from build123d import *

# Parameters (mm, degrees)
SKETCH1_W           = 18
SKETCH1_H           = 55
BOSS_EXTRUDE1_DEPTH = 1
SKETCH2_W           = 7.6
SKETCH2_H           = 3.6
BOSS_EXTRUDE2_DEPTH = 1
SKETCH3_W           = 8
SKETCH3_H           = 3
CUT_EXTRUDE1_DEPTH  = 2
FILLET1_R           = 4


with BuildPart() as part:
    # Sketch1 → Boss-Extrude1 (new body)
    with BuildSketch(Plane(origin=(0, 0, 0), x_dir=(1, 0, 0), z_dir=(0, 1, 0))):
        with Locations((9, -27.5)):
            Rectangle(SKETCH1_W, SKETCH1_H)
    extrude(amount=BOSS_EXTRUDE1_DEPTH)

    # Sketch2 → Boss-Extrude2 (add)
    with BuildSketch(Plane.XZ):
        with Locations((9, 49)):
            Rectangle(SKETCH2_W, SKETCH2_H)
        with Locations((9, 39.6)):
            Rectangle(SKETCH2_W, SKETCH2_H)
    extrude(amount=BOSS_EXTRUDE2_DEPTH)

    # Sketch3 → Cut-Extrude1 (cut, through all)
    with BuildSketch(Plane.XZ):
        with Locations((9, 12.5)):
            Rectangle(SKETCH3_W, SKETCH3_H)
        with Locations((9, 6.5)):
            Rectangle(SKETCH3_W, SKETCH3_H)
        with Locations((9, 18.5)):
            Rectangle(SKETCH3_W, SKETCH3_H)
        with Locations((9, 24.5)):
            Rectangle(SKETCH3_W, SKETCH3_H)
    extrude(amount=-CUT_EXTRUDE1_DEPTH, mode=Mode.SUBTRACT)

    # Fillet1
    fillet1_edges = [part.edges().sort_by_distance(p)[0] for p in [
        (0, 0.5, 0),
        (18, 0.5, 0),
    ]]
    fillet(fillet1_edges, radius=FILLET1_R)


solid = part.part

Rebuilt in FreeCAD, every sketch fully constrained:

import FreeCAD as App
import Part
import Sketcher

V = App.Vector


def edges_at(feature, points):
    """Names of the edges that pass closest to the given points."""
    edges = feature.Shape.Edges
    near = lambda p: min(range(len(edges)), key=lambda i: edges[i].distToShape(Part.Vertex(*p))[0])
    return sorted({f"Edge{near(p) + 1}" for p in points})


def add_polygon(sketch, points):
    """Adds a closed chain of lines whose ends are joined by coincident constraints."""
    first, n = sketch.GeometryCount, len(points)
    for a, b in zip(points, points[1:] + points[:1]):
        sketch.addGeometry(Part.LineSegment(App.Vector(*a, 0), App.Vector(*b, 0)), False)
    for i in range(n):
        sketch.addConstraint(Sketcher.Constraint("Coincident", first + i, 2, first + (i + 1) % n, 1))

doc = App.newDocument("Part")
body = doc.addObject("PartDesign::Body", "Body")

# Sketch on XZ plane
sketch1 = body.newObject("Sketcher::SketchObject", "Sketch")
sketch1.AttachmentSupport = (doc.getObject("XZ_Plane"), [""])
sketch1.MapMode = "FlatFace"
add_polygon(sketch1, [(0, 0), (0, 55), (18, 55), (18, 0)])  # lines 0-3
sketch1.addConstraint([
    Sketcher.Constraint("Vertical", 0),
    Sketcher.Constraint("Horizontal", 1),
    Sketcher.Constraint("Vertical", 2),
    Sketcher.Constraint("Horizontal", 3),
    Sketcher.Constraint("Coincident", 3, 2, -1, 1),
    Sketcher.Constraint("DistanceX", 1, 1, 1, 2, 18.0),
    Sketcher.Constraint("DistanceY", 0, 1, 0, 2, 55.0),
])
pad1 = body.newObject("PartDesign::Pad", "Pad")
pad1.Profile = sketch1
pad1.Length = 1
pad1.Reversed = True

# Sketch on XZ plane
sketch2 = body.newObject("Sketcher::SketchObject", "Sketch001")
sketch2.AttachmentSupport = (doc.getObject("XZ_Plane"), [""])
sketch2.MapMode = "FlatFace"
add_polygon(sketch2, [(5.2, 50.8), (5.2, 47.2), (12.8, 47.2), (12.8, 50.8)])  # lines 0-3
add_polygon(sketch2, [(5.2, 41.4), (5.2, 37.8), (12.8, 37.8), (12.8, 41.4)])  # lines 4-7
sketch2.addConstraint([
    Sketcher.Constraint("Vertical", 0),
    Sketcher.Constraint("Horizontal", 1),
    Sketcher.Constraint("Vertical", 2),
    Sketcher.Constraint("Horizontal", 3),
    Sketcher.Constraint("Vertical", 4),
    Sketcher.Constraint("Horizontal", 5),
    Sketcher.Constraint("Vertical", 6),
    Sketcher.Constraint("Horizontal", 7),
    Sketcher.Constraint("Vertical", 3, 2, 4, 2),
    Sketcher.Constraint("Vertical", 2, 2, 5, 2),
    Sketcher.Constraint("Equal", 2, 4),
    Sketcher.Constraint("DistanceX", 1, 1, 1, 2, 7.6),
    Sketcher.Constraint("DistanceY", 0, 2, 0, 1, 3.6),
    Sketcher.Constraint("DistanceY", 4, 2, 3, 2, 13.0),
    Sketcher.Constraint("DistanceX", -1, 1, 0, 2, 5.2),
    Sketcher.Constraint("DistanceY", -1, 1, 0, 2, 47.2),
])
pad2 = body.newObject("PartDesign::Pad", "Pad001")
pad2.Profile = sketch2
pad2.Length = 1

# Sketch on XZ plane
sketch3 = body.newObject("Sketcher::SketchObject", "Sketch002")
sketch3.AttachmentSupport = (doc.getObject("XZ_Plane"), [""])
sketch3.MapMode = "FlatFace"
add_polygon(sketch3, [(5, 14), (5, 11), (13, 11), (13, 14)])  # lines 0-3
add_polygon(sketch3, [(5, 8), (5, 5), (13, 5), (13, 8)])  # lines 4-7
add_polygon(sketch3, [(5, 20), (5, 17), (13, 17), (13, 20)])  # lines 8-11
add_polygon(sketch3, [(5, 26), (5, 23), (13, 23), (13, 26)])  # lines 12-15
sketch3.addConstraint([
    Sketcher.Constraint("Vertical", 0),
    Sketcher.Constraint("Horizontal", 1),
    Sketcher.Constraint("Vertical", 2),
    Sketcher.Constraint("Horizontal", 3),
    Sketcher.Constraint("Vertical", 4),
    Sketcher.Constraint("Horizontal", 5),
    Sketcher.Constraint("Vertical", 6),
    Sketcher.Constraint("Horizontal", 7),
    Sketcher.Constraint("Vertical", 8),
    Sketcher.Constraint("Horizontal", 9),
    Sketcher.Constraint("Vertical", 10),
    Sketcher.Constraint("Horizontal", 11),
    Sketcher.Constraint("Vertical", 12),
    Sketcher.Constraint("Horizontal", 13),
    Sketcher.Constraint("Vertical", 14),
    Sketcher.Constraint("Horizontal", 15),
    Sketcher.Constraint("Vertical", 3, 2, 4, 2),
    Sketcher.Constraint("Vertical", 2, 2, 5, 2),
    Sketcher.Constraint("Vertical", 7, 2, 8, 2),
    Sketcher.Constraint("Vertical", 6, 2, 9, 2),
    Sketcher.Constraint("Vertical", 11, 2, 12, 2),
    Sketcher.Constraint("Vertical", 10, 2, 13, 2),
    Sketcher.Constraint("Equal", 2, 4),
    Sketcher.Constraint("Equal", 6, 8),
    Sketcher.Constraint("Equal", 10, 12),
    Sketcher.Constraint("DistanceX", 1, 1, 1, 2, 8.0),
    Sketcher.Constraint("DistanceY", 0, 2, 0, 1, 3.0),
    Sketcher.Constraint("DistanceX", -1, 1, 0, 2, 5.0),
    Sketcher.Constraint("DistanceY", -1, 1, 0, 2, 11.0),
    Sketcher.Constraint("DistanceY", -1, 1, 4, 2, 5.0),
    Sketcher.Constraint("DistanceY", -1, 1, 8, 2, 17.0),
    Sketcher.Constraint("DistanceY", -1, 1, 12, 2, 23.0),
])
pocket1 = body.newObject("PartDesign::Pocket", "Pocket")
pocket1.Profile = sketch3
pocket1.Type = "ThroughAll"
doc.recompute()

fillet = body.newObject("PartDesign::Fillet", "Fillet")
fillet.Base = (pocket1, edges_at(pocket1, [(0, 0.5, 0), (18, 0.5, 0)]))
fillet.Radius = 4

doc.recompute()
